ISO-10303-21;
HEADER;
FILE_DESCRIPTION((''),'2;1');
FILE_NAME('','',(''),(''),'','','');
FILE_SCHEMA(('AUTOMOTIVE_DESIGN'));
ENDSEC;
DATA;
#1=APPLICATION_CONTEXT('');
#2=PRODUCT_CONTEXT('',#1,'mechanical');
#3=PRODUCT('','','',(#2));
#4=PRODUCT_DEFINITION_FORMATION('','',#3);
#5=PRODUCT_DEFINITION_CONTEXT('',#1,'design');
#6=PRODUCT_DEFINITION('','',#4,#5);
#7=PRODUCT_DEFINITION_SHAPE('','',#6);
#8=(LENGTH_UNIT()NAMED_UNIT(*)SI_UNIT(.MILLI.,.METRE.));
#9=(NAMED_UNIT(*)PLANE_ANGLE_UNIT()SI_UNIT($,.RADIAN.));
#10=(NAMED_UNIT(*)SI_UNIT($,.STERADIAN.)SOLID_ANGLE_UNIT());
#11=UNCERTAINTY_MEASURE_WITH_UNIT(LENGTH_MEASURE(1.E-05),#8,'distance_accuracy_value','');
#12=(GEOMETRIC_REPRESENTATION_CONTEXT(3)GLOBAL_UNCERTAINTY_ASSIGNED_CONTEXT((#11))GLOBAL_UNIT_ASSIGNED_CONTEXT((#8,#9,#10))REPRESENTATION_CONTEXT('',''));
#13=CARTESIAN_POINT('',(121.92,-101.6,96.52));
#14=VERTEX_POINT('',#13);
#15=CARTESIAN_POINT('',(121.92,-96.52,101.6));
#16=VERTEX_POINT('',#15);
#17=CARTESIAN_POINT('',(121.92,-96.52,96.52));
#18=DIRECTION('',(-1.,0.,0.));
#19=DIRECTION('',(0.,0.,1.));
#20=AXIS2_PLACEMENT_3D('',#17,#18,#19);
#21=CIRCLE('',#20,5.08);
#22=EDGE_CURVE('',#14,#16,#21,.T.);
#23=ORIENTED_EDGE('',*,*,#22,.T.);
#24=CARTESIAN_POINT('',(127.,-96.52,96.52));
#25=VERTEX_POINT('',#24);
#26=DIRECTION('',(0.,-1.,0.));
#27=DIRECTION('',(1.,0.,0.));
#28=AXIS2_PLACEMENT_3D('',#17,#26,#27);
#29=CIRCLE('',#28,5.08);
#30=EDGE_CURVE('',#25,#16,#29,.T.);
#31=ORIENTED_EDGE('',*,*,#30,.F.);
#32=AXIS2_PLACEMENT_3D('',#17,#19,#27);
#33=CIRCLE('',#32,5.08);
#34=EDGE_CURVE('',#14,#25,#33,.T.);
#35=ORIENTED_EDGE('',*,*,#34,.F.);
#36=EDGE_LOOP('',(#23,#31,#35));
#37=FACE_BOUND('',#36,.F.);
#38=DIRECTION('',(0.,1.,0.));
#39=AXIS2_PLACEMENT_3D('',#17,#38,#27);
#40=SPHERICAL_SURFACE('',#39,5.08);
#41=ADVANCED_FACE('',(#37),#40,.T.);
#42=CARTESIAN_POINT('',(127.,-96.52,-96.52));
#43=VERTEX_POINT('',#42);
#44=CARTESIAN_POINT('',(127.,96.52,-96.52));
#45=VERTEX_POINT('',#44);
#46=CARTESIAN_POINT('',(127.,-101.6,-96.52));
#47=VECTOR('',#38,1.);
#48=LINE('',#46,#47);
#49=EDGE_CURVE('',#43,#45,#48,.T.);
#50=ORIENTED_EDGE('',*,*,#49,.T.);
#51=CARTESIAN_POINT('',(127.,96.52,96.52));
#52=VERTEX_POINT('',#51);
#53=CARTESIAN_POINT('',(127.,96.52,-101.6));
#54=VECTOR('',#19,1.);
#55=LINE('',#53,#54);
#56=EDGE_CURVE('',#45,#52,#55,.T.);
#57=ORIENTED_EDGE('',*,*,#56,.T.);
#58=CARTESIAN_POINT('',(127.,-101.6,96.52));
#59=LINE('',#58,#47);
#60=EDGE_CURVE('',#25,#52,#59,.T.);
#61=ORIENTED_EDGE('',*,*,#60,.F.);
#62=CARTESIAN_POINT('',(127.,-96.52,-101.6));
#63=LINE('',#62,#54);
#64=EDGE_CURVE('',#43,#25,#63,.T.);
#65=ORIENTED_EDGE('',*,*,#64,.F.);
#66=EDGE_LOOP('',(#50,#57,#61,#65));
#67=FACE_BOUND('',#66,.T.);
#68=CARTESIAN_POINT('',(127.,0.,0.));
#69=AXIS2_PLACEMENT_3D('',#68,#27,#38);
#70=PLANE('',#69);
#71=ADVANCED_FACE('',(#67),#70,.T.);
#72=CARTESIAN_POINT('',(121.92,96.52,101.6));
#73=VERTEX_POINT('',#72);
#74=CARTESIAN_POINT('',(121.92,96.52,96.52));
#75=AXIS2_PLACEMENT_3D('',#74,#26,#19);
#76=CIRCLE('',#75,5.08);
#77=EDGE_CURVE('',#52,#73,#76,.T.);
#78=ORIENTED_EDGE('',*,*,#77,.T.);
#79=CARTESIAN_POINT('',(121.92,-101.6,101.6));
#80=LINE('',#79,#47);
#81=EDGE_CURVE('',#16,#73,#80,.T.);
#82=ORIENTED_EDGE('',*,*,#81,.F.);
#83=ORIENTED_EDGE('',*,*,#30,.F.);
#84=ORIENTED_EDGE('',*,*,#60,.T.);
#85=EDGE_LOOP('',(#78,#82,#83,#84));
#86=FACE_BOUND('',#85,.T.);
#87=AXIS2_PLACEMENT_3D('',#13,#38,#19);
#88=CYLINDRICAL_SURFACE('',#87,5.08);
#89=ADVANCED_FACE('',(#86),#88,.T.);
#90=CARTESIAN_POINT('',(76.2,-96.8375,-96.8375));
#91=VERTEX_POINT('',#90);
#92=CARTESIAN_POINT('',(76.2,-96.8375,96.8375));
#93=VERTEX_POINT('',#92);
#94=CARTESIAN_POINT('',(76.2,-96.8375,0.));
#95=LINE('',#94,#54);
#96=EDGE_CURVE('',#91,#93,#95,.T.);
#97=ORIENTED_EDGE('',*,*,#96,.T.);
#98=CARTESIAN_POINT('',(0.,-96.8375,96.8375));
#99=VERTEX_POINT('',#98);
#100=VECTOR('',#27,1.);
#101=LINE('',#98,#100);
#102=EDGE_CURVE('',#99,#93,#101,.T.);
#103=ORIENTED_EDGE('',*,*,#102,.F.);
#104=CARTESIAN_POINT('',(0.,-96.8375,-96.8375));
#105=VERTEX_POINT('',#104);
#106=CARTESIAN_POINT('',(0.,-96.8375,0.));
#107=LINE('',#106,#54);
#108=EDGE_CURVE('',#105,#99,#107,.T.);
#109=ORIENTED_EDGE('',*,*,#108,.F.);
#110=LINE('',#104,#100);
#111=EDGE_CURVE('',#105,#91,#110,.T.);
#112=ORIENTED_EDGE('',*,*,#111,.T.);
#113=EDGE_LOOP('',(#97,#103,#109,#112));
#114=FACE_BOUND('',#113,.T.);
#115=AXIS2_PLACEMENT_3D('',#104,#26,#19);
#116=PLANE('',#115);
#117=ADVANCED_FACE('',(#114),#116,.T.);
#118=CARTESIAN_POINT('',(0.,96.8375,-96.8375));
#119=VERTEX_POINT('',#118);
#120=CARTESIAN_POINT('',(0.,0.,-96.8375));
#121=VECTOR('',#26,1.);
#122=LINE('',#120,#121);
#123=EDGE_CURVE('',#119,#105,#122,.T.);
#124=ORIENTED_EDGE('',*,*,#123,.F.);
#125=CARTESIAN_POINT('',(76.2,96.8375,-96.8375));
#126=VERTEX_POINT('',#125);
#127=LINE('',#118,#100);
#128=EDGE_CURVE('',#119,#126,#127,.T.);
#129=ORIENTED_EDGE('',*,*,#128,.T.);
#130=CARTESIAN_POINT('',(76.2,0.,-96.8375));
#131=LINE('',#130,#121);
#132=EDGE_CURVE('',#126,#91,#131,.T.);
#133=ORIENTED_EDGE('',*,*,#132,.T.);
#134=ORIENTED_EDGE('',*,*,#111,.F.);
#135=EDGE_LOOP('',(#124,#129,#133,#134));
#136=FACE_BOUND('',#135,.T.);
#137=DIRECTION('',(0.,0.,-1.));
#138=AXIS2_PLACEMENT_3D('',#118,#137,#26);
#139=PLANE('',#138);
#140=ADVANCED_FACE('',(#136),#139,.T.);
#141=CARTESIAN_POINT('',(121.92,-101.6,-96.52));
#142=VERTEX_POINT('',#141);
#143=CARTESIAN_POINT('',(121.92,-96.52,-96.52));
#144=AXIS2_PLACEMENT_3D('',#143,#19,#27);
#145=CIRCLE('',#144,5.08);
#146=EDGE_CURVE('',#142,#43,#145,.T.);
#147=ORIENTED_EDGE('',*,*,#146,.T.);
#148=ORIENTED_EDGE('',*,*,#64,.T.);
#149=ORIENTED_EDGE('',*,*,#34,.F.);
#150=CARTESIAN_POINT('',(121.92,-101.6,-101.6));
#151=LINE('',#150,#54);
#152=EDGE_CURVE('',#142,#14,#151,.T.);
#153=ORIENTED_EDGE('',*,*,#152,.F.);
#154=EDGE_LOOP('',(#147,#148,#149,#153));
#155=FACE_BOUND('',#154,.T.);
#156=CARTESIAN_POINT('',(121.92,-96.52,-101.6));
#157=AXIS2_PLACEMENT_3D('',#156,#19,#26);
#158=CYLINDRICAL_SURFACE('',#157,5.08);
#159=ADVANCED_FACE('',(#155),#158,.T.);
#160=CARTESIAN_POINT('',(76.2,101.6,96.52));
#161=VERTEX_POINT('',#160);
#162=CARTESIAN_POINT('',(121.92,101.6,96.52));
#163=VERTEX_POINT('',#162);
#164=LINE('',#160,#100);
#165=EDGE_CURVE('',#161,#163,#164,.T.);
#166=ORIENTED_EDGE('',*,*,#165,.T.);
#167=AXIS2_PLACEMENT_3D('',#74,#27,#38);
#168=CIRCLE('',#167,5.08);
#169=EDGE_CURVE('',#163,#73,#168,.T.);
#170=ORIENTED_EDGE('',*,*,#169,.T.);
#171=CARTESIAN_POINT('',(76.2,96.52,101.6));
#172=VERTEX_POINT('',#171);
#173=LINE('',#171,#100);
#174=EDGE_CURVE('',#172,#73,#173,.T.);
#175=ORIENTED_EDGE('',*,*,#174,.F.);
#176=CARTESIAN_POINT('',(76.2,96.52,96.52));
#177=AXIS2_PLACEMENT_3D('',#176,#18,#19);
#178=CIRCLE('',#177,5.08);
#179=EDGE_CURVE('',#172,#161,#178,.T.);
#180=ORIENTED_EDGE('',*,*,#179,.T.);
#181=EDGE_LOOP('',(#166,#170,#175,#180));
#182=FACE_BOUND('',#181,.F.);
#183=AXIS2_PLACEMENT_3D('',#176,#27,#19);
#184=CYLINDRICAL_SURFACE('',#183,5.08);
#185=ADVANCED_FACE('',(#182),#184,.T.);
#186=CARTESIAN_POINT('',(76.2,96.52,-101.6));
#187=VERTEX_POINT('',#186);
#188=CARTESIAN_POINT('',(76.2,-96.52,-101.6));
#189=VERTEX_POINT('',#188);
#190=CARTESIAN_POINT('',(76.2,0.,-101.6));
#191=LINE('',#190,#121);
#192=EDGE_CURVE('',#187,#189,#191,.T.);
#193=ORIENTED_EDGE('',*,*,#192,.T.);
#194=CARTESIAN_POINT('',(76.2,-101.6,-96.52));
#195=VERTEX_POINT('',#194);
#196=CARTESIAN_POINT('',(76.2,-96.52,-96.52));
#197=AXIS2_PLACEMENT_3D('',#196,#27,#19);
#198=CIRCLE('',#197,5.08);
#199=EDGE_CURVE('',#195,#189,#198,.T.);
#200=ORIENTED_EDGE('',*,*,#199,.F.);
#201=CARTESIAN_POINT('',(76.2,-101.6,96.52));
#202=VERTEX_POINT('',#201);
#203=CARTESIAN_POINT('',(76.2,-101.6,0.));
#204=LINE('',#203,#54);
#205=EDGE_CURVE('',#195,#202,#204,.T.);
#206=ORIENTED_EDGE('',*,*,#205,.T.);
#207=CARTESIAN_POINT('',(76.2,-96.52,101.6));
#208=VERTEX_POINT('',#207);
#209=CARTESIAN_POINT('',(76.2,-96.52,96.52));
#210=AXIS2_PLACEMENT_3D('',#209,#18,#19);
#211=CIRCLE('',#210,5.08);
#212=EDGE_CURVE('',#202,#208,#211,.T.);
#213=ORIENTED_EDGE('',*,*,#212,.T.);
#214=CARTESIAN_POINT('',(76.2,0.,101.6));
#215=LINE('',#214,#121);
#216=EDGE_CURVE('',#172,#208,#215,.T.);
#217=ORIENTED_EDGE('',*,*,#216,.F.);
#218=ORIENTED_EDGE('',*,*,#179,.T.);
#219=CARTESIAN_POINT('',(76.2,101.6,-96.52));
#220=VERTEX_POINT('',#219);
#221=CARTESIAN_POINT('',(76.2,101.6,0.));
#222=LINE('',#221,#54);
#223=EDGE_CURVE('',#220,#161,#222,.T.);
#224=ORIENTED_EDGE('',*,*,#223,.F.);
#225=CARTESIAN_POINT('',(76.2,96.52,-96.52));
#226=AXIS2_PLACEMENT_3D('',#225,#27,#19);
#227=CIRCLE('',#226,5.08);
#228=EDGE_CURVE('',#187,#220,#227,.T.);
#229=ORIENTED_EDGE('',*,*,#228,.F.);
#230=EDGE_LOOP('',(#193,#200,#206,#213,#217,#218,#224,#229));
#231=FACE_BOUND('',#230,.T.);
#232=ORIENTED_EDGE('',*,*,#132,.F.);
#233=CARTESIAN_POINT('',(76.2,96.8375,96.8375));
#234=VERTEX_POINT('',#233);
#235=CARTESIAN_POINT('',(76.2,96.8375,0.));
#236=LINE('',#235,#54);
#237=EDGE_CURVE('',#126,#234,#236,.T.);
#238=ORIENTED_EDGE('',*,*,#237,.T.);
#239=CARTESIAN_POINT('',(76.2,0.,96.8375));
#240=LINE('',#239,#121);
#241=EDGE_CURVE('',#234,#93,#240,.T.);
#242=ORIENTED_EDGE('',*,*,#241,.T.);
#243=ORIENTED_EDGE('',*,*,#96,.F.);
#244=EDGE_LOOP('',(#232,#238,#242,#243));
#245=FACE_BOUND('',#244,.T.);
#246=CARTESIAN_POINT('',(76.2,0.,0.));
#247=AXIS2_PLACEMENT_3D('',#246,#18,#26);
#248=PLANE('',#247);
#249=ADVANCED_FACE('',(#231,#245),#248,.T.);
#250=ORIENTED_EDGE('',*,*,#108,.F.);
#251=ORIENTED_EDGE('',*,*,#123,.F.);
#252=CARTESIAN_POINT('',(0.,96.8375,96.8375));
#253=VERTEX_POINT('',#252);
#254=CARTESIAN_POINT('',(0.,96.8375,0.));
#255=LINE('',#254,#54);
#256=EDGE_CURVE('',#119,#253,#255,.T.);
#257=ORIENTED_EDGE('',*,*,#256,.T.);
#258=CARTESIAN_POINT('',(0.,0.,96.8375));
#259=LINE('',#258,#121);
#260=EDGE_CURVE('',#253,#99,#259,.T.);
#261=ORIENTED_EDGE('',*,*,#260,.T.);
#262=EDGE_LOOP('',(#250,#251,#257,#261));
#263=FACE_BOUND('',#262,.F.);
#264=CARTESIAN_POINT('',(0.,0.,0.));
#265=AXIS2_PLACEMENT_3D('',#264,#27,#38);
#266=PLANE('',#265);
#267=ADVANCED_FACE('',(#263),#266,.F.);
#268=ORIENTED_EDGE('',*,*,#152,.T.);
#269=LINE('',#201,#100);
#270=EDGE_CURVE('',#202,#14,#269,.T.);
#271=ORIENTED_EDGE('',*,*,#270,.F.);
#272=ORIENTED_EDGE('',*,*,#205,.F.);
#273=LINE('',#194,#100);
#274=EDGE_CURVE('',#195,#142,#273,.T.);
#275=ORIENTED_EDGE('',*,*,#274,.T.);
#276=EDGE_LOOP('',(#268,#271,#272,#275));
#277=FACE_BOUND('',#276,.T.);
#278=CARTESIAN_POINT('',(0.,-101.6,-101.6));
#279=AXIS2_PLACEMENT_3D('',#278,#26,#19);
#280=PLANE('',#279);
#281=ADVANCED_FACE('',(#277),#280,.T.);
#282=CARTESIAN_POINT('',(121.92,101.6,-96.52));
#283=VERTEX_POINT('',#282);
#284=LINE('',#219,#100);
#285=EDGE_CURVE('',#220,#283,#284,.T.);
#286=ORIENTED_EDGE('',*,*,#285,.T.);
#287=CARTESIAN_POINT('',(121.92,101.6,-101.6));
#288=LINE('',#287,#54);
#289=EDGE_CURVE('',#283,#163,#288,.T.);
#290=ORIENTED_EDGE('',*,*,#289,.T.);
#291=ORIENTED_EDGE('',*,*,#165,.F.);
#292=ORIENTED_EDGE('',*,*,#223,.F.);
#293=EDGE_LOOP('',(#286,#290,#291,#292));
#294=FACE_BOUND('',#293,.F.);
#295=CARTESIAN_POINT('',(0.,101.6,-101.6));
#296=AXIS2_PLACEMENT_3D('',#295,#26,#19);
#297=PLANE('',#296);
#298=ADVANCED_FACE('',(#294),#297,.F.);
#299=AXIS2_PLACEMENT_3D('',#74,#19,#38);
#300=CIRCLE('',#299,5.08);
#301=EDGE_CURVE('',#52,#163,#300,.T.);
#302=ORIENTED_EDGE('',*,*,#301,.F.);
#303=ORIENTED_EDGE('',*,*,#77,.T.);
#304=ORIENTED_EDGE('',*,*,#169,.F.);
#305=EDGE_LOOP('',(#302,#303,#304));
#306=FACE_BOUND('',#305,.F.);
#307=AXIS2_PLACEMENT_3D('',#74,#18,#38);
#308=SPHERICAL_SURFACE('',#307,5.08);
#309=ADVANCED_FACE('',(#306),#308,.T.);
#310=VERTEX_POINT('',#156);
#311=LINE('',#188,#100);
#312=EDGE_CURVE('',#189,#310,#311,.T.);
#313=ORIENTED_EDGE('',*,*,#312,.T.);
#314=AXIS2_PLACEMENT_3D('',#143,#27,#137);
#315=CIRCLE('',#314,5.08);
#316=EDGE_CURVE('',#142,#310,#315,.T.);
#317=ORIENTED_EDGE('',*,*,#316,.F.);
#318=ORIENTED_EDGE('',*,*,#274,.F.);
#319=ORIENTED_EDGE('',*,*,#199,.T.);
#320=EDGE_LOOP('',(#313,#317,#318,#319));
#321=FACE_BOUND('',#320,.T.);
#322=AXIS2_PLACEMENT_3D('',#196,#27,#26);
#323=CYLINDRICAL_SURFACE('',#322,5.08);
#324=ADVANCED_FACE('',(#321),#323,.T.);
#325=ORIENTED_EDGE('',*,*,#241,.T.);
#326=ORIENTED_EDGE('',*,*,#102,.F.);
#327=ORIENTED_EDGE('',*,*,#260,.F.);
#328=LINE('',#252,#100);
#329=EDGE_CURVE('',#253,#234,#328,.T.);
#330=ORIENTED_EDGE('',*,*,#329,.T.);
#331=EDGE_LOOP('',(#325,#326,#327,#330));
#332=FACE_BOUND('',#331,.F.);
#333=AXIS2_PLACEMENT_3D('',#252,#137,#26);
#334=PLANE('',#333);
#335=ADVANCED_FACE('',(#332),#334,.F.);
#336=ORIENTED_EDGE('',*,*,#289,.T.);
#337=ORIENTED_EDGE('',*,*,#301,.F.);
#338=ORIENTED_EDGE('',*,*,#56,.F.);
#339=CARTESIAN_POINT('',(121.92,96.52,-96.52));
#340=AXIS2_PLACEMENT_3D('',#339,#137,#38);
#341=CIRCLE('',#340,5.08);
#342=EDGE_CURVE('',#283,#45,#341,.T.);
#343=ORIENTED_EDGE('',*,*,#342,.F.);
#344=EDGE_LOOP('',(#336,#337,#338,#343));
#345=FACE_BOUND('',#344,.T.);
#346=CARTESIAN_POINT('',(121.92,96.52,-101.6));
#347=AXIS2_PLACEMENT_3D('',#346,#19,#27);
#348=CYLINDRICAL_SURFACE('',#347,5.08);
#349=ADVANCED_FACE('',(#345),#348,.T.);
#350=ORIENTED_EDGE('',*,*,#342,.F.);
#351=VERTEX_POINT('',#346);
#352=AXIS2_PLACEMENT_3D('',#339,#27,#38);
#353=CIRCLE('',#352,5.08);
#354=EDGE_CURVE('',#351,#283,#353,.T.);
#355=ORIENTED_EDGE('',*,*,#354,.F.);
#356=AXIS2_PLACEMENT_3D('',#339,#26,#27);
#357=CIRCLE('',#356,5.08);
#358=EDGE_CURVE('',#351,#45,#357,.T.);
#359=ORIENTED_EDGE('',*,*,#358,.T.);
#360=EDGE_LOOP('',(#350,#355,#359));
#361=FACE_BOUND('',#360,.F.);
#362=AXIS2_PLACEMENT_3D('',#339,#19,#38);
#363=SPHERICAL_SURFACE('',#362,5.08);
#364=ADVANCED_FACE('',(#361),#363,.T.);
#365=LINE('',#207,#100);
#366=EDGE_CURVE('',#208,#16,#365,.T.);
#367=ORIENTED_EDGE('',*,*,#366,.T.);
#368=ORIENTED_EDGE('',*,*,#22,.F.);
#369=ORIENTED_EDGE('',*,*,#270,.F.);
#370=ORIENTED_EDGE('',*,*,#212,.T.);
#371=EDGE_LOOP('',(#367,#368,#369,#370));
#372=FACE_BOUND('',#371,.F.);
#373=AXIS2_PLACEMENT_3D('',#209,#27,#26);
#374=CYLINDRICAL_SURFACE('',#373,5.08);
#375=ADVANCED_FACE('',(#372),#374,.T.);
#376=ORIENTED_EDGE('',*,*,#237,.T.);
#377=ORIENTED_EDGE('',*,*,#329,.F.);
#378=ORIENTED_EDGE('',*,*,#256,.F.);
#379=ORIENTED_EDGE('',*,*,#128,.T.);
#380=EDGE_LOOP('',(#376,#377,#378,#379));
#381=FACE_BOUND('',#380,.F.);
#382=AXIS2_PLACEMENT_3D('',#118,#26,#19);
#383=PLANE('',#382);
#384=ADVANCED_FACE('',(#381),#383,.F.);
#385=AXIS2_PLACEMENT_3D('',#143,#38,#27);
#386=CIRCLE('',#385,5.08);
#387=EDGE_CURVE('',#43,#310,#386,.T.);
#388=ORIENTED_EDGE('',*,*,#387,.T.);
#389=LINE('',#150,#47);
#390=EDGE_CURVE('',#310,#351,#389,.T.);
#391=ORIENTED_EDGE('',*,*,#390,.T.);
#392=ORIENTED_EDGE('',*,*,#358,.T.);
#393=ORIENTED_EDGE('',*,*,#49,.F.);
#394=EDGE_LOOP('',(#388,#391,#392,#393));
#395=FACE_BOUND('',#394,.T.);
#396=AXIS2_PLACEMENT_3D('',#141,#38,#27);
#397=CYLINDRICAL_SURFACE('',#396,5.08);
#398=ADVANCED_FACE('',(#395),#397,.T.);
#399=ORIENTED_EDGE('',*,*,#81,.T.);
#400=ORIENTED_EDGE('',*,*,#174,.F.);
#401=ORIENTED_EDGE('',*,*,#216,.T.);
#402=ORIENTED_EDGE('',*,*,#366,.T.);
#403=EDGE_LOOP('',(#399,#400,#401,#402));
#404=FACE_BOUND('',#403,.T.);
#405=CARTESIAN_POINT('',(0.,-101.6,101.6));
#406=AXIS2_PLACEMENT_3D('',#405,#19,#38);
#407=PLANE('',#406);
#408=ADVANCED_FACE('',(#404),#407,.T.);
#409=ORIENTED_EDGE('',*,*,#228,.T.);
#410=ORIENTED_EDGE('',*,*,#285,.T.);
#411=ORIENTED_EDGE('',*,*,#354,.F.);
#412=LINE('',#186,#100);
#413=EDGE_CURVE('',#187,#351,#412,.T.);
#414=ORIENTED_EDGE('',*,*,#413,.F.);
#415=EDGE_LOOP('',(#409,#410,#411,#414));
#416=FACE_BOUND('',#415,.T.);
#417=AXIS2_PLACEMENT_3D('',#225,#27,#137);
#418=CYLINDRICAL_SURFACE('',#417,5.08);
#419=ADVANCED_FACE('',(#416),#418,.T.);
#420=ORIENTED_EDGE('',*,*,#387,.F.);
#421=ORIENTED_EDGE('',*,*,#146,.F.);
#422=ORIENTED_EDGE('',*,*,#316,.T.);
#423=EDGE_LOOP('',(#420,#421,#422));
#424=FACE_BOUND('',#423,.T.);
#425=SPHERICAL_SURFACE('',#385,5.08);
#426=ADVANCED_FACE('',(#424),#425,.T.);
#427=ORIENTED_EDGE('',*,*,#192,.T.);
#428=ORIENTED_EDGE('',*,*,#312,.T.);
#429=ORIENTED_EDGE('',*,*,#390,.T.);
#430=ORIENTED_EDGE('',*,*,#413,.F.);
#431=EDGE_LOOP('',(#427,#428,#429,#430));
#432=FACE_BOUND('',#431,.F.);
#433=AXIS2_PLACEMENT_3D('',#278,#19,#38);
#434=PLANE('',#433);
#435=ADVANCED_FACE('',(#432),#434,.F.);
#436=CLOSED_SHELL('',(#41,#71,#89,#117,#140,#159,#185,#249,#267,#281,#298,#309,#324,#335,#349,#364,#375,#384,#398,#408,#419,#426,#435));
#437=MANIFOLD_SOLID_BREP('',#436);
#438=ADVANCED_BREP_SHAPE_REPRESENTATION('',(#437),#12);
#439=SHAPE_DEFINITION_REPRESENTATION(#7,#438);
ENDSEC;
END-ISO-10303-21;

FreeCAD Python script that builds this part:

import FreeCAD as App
import Part
import Sketcher
from FreeCAD import Vector
Q = App.Units.Quantity


def edges_at(feature, points):
    """Names of the edges that pass closest to the given points."""
    edges = feature.Shape.Edges
    near = lambda p: min(range(len(edges)), key=lambda i: edges[i].distToShape(Part.Vertex(*p))[0])
    return sorted({f"Edge{near(p) + 1}" for p in points})


def add_polygon(sketch, points):
    """Adds a closed chain of lines whose ends are joined by coincident constraints."""
    first, n = sketch.GeometryCount, len(points)
    for a, b in zip(points, points[1:] + points[:1]):
        sketch.addGeometry(Part.LineSegment(App.Vector(*a, 0), App.Vector(*b, 0)), False)
    for i in range(n):
        sketch.addConstraint(Sketcher.Constraint("Coincident", first + i, 2, first + (i + 1) % n, 1))

doc = App.newDocument("Part")
params = doc.addObject("Spreadsheet::Sheet", "Params")
for row, (alias, value) in enumerate([
    ("sketch1_width", "8 in"),
    ("pad1_length", "5 in"),
    ("sketch2_width", "8 in"),
    ("sketch2_width2", "7.625 in"),
    ("pocket1_length", "3 in"),
    ("fillet_radius", "0.2 in"),
], start=1):
    params.set(f"A{row}", alias)
    params.set(f"B{row}", "=" + value)
    params.setAlias(f"B{row}", alias)

body = doc.addObject("PartDesign::Body", "Body")

# Sketch on YZ plane
sketch1 = doc.addObject("Sketcher::SketchObject", "Sketch")
body.addObject(sketch1)
sketch1.AttachmentSupport = (doc.YZ_Plane, [""])
sketch1.MapMode = "FlatFace"
add_polygon(sketch1, [(-102, 102), (-102, -102), (102, -102), (102, 102)])  # lines 0-3
sketch1.addConstraint([
    Sketcher.Constraint("Vertical", 0),
    Sketcher.Constraint("Horizontal", 1),
    Sketcher.Constraint("Vertical", 2),
    Sketcher.Constraint("Horizontal", 3),
    Sketcher.Constraint("Symmetric", 0, 2, 2, 2, -1, 1),
    Sketcher.Constraint("Equal", 3, 0),
    Sketcher.Constraint("DistanceX", 1, 1, 1, 2, Q("8 in")),
])
sketch1.setExpression("Constraints[10]", "Params.sketch1_width")
pad1 = doc.addObject("PartDesign::Pad", "Pad")
body.addObject(pad1)
pad1.Profile = sketch1
pad1.setExpression("Length", "Params.pad1_length")

# Sketch on YZ plane
sketch2 = doc.addObject("Sketcher::SketchObject", "Sketch001")
body.addObject(sketch2)
sketch2.AttachmentSupport = (doc.YZ_Plane, [""])
sketch2.MapMode = "FlatFace"
add_polygon(sketch2, [(102, 102), (102, -102), (-102, -102), (-102, 102)])  # lines 0-3
add_polygon(sketch2, [(-97, -97), (97, -97), (97, 97), (-97, 97)])  # lines 4-7
sketch2.addConstraint([
    Sketcher.Constraint("Vertical", 0),
    Sketcher.Constraint("Horizontal", 1),
    Sketcher.Constraint("Vertical", 2),
    Sketcher.Constraint("Horizontal", 3),
    Sketcher.Constraint("Horizontal", 4),
    Sketcher.Constraint("Vertical", 5),
    Sketcher.Constraint("Horizontal", 6),
    Sketcher.Constraint("Vertical", 7),
    Sketcher.Constraint("Symmetric", 0, 2, 2, 2, -1, 1),
    Sketcher.Constraint("Symmetric", 4, 2, 6, 2, -1, 1),
    Sketcher.Constraint("Equal", 3, 0),
    Sketcher.Constraint("Equal", 6, 5),
    Sketcher.Constraint("DistanceX", 1, 2, 1, 1, Q("8 in")),
    Sketcher.Constraint("DistanceX", 4, 1, 4, 2, Q("7.625 in")),
])
sketch2.setExpression("Constraints[20]", "Params.sketch2_width")
sketch2.setExpression("Constraints[21]", "Params.sketch2_width2")
pocket1 = doc.addObject("PartDesign::Pocket", "Pocket")
body.addObject(pocket1)
pocket1.Profile = sketch2
pocket1.setExpression("Length", "Params.pocket1_length")
pocket1.Reversed = True
doc.recompute()

fillet = doc.addObject("PartDesign::Fillet", "Fillet")
body.addObject(fillet)
fillet.Base = (pocket1, edges_at(pocket1, [
    (101.6, 101.6, 101.6),
    (127, 101.6, 0),
    (101.6, 101.6, -101.6),
    (127, 0, -101.6),
    (127, 0, 101.6),
    (127, -101.6, 0),
    (101.6, -101.6, 101.6),
    (101.6, -101.6, -101.6),
]))
fillet.setExpression("Radius", "Params.fillet_radius")

doc.recompute()
